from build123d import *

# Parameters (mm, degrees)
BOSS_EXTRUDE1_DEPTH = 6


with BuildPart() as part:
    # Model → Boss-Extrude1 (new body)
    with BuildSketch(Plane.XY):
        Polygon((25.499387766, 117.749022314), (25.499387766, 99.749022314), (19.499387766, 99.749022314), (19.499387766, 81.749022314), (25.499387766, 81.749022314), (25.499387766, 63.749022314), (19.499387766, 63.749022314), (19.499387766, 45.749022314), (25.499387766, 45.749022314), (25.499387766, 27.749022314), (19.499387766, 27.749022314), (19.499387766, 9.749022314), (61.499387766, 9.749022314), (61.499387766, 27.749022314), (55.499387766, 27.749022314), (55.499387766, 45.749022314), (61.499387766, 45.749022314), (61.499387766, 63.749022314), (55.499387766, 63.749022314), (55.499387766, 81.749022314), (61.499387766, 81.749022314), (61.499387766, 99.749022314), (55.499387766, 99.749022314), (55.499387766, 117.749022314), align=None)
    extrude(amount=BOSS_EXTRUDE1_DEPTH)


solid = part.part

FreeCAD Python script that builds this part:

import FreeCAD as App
import Part
import Sketcher


def add_polygon(sketch, points):
    """Adds a closed chain of lines whose ends are joined by coincident constraints."""
    first, n = sketch.GeometryCount, len(points)
    for a, b in zip(points, points[1:] + points[:1]):
        sketch.addGeometry(Part.LineSegment(App.Vector(*a, 0), App.Vector(*b, 0)), False)
    for i in range(n):
        sketch.addConstraint(Sketcher.Constraint("Coincident", first + i, 2, first + (i + 1) % n, 1))

doc = App.newDocument("Part")
body = doc.addObject("PartDesign::Body", "Body")

sketch1 = body.newObject("Sketcher::SketchObject", "Sketch")
sketch1.AttachmentSupport = (doc.getObject("XY_Plane"), [""])
sketch1.MapMode = "FlatFace"
add_polygon(sketch1, [(25.499388, 117.749022), (25.499388, 99.749022), (19.499388, 99.749022), (19.499388, 81.749022), (25.499388, 81.749022), (25.499388, 63.749022), (19.499388, 63.749022), (19.499388, 45.749022), (25.499388, 45.749022), (25.499388, 27.749022), (19.499388, 27.749022), (19.499388, 9.749022), (61.499388, 9.749022), (61.499388, 27.749022), (55.499388, 27.749022), (55.499388, 45.749022), (61.499388, 45.749022), (61.499388, 63.749022), (55.499388, 63.749022), (55.499388, 81.749022), (61.499388, 81.749022), (61.499388, 99.749022), (55.499388, 99.749022), (55.499388, 117.749022)])
sketch1.addConstraint([
    Sketcher.Constraint("Vertical", 0),
    Sketcher.Constraint("Horizontal", 1),
    Sketcher.Constraint("Vertical", 2),
    Sketcher.Constraint("Horizontal", 3),
    Sketcher.Constraint("Vertical", 4),
    Sketcher.Constraint("Horizontal", 5),
    Sketcher.Constraint("Vertical", 6),
    Sketcher.Constraint("Horizontal", 7),
    Sketcher.Constraint("Vertical", 8),
    Sketcher.Constraint("Horizontal", 9),
    Sketcher.Constraint("Vertical", 10),
    Sketcher.Constraint("Horizontal", 11),
    Sketcher.Constraint("Vertical", 12),
    Sketcher.Constraint("Horizontal", 13),
    Sketcher.Constraint("Vertical", 14),
    Sketcher.Constraint("Horizontal", 15),
    Sketcher.Constraint("Vertical", 16),
    Sketcher.Constraint("Horizontal", 17),
    Sketcher.Constraint("Vertical", 18),
    Sketcher.Constraint("Horizontal", 19),
    Sketcher.Constraint("Vertical", 20),
    Sketcher.Constraint("Horizontal", 21),
    Sketcher.Constraint("Vertical", 22),
    Sketcher.Constraint("Horizontal", 23),
    Sketcher.Constraint("Horizontal", 9, 2, 12, 2),
    Sketcher.Constraint("Horizontal", 7, 2, 14, 2),
    Sketcher.Constraint("Horizontal", 5, 2, 16, 2),
    Sketcher.Constraint("Horizontal", 3, 2, 18, 2),
    Sketcher.Constraint("Horizontal", 1, 2, 20, 2),
    Sketcher.Constraint("Vertical", 0, 2, 3, 2),
    Sketcher.Constraint("Vertical", 2, 2, 5, 2),
    Sketcher.Constraint("Vertical", 4, 2, 7, 2),
    Sketcher.Constraint("Vertical", 6, 2, 9, 2),
    Sketcher.Constraint("Vertical", 12, 2, 15, 2),
    Sketcher.Constraint("Vertical", 14, 2, 17, 2),
    Sketcher.Constraint("Vertical", 16, 2, 19, 2),
    Sketcher.Constraint("Vertical", 18, 2, 21, 2),
    Sketcher.Constraint("Equal", 9, 13),
    Sketcher.Constraint("Equal", 0, 2),
    Sketcher.Constraint("Equal", 2, 4),
    Sketcher.Constraint("Equal", 4, 6),
    Sketcher.Constraint("Equal", 6, 8),
    Sketcher.Constraint("Equal", 8, 10),
    Sketcher.Constraint("DistanceX", 1, 2, 1, 1, 6.0),
    Sketcher.Constraint("DistanceX", 11, 1, 11, 2, 42.0),
    Sketcher.Constraint("DistanceY", 0, 2, 0, 1, 18.0),
    Sketcher.Constraint("DistanceX", -1, 1, 0, 2, 25.499388),
    Sketcher.Constraint("DistanceY", -1, 1, 0, 2, 99.749022),
])
pad1 = body.newObject("PartDesign::Pad", "Pad")
pad1.Profile = sketch1
pad1.Length = 6

doc.recompute()
